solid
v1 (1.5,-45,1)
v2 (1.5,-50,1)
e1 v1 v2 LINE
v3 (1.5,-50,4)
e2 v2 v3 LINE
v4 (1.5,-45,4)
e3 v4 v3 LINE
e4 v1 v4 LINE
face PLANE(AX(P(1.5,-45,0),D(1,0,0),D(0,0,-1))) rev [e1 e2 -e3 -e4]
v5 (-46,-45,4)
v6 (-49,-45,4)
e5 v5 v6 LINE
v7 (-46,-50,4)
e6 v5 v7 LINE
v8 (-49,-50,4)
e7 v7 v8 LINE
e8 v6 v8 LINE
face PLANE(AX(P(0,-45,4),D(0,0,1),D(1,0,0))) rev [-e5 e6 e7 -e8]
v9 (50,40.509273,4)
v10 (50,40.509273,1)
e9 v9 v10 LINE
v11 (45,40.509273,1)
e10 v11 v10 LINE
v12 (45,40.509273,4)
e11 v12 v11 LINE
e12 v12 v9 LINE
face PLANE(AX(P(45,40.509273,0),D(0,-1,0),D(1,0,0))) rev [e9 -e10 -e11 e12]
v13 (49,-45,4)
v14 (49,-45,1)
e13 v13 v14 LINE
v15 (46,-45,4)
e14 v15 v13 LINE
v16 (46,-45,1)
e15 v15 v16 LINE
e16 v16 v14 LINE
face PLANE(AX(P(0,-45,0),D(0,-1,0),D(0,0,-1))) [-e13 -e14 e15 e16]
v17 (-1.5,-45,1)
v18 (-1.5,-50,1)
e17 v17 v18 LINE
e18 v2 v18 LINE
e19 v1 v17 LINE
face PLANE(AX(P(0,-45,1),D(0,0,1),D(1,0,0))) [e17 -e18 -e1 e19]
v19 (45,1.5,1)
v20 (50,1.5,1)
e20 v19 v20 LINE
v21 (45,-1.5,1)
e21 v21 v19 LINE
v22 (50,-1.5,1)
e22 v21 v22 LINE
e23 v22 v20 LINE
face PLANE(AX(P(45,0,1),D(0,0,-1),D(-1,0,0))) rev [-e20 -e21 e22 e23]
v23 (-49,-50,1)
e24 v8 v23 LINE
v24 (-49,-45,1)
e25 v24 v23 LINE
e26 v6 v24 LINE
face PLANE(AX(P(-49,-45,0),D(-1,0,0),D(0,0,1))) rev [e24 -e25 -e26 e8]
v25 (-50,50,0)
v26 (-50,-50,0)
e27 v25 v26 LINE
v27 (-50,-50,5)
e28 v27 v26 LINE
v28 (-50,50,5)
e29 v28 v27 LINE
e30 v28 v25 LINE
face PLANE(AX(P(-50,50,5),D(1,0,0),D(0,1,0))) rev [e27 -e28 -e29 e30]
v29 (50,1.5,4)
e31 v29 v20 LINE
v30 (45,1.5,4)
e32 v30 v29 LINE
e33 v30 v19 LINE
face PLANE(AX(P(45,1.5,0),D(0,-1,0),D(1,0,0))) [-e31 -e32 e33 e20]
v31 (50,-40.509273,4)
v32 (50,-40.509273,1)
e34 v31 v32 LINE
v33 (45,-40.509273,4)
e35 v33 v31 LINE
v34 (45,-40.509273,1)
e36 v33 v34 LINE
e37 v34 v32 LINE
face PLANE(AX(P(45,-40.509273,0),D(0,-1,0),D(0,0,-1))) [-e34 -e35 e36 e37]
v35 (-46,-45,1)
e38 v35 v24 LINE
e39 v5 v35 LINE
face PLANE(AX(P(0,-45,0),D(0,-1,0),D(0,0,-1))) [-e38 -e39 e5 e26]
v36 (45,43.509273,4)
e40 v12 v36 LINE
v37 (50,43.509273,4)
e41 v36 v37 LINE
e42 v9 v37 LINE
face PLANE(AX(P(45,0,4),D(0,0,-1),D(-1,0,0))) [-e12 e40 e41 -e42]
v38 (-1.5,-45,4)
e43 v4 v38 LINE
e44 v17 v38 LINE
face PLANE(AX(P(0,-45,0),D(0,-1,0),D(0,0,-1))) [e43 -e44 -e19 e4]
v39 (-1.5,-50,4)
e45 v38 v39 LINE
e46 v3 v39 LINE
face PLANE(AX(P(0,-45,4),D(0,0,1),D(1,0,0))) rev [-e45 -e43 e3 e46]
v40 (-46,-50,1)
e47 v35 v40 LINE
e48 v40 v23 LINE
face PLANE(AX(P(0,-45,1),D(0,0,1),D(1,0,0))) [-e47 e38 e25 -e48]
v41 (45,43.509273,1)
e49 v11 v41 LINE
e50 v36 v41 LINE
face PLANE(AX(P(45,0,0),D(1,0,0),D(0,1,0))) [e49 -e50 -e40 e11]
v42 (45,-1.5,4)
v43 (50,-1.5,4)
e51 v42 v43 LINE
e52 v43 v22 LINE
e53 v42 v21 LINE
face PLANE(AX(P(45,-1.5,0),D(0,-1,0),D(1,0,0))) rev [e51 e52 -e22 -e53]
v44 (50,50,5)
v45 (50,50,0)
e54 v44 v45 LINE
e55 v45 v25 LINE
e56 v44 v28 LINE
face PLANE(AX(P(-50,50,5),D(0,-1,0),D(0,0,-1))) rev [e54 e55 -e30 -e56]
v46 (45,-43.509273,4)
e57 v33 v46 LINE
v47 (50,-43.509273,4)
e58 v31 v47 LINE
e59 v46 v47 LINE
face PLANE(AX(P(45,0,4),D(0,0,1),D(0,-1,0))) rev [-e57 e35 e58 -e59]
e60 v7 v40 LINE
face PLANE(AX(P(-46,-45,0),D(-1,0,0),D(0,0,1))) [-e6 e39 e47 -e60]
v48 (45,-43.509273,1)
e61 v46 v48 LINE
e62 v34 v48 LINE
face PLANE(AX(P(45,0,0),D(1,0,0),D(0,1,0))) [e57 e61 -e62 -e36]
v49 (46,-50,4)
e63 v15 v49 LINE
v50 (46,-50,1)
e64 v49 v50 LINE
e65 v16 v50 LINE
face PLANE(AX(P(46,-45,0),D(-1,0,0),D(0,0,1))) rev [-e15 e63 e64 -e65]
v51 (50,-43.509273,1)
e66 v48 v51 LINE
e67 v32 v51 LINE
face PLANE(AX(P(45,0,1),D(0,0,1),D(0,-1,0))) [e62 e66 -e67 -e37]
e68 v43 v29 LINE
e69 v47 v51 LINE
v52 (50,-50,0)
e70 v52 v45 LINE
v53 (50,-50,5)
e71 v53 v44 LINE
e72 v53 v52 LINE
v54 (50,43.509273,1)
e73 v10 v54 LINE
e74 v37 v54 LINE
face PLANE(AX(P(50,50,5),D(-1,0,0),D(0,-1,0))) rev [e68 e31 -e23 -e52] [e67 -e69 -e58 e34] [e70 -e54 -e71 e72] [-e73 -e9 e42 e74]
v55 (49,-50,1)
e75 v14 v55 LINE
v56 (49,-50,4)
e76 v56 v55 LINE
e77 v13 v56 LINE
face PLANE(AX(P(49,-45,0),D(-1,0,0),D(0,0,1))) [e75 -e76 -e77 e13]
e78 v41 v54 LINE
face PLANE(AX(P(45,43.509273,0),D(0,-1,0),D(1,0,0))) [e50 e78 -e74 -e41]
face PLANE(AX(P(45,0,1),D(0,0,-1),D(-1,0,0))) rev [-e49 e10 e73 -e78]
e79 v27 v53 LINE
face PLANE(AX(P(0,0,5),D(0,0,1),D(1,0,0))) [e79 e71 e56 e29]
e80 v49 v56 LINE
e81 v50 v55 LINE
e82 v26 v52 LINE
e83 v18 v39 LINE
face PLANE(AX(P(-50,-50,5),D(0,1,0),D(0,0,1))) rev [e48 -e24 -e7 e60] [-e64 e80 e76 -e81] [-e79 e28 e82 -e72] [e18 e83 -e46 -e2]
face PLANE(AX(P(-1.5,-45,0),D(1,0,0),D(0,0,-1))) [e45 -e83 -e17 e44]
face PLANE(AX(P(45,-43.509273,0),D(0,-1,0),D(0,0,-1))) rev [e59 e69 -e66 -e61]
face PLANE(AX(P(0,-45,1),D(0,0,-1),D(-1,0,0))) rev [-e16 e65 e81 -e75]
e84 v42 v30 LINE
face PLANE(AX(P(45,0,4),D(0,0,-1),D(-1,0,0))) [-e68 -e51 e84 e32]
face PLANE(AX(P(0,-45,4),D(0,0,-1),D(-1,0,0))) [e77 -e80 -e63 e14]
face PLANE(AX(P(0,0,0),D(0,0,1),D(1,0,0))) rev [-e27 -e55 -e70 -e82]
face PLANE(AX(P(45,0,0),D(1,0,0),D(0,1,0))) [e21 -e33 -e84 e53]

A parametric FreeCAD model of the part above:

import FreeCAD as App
import Part
import Sketcher

V = App.Vector
Q = App.Units.Quantity

doc = App.newDocument("Part")
body = doc.addObject("PartDesign::Body", "Body")

sketch1 = body.newObject("Sketcher::SketchObject", "Sketch")
sketch1.AttachmentSupport = (doc.getObject("XY_Plane"), [""])
sketch1.MapMode = "FlatFace"
sketch1.addGeometry([
    Part.LineSegment(V(-50, 50, 0), V(-50, -50, 0)),
    Part.LineSegment(V(-50, -50, 0), V(50, -50, 0)),
    Part.LineSegment(V(50, -50, 0), V(50, 50, 0)),
    Part.LineSegment(V(50, 50, 0), V(-50, 50, 0)),
], False)
sketch1.addConstraint([
    Sketcher.Constraint("Coincident", 0, 2, 1, 1),
    Sketcher.Constraint("Coincident", 1, 2, 2, 1),
    Sketcher.Constraint("Coincident", 2, 2, 3, 1),
    Sketcher.Constraint("Coincident", 3, 2, 0, 1),
    Sketcher.Constraint("Vertical", 0),
    Sketcher.Constraint("Horizontal", 1),
    Sketcher.Constraint("Vertical", 2),
    Sketcher.Constraint("Horizontal", 3),
    Sketcher.Constraint("Symmetric", 0, 2, 2, 2, -1, 1),
    Sketcher.Constraint("Equal", 3, 0),
    Sketcher.Constraint("DistanceX", 1, 1, 1, 2, Q("100 mm")),
])
pad1 = body.newObject("PartDesign::Pad", "Pad")
pad1.Profile = sketch1
pad1.Length = 5

sketch2 = body.newObject("Sketcher::SketchObject", "Sketch001")
sketch2.AttachmentSupport = (doc.getObject("YZ_Plane"), [""])
sketch2.MapMode = "FlatFace"
sketch2.AttachmentOffset = App.Placement(V(0, 0, 50), App.Rotation())
sketch2.addGeometry([
    Part.LineSegment(V(40.509273, 1, 0), V(43.509273, 1, 0)),
    Part.LineSegment(V(43.509273, 1, 0), V(43.509273, 4, 0)),
    Part.LineSegment(V(43.509273, 4, 0), V(40.509273, 4, 0)),
    Part.LineSegment(V(40.509273, 4, 0), V(40.509273, 1, 0)),
    Part.LineSegment(V(-1.5, 4, 0), V(-1.5, 1, 0)),
    Part.LineSegment(V(-1.5, 1, 0), V(1.5, 1, 0)),
    Part.LineSegment(V(1.5, 1, 0), V(1.5, 4, 0)),
    Part.LineSegment(V(1.5, 4, 0), V(-1.5, 4, 0)),
    Part.LineSegment(V(-40.509273, 4, 0), V(-43.509273, 4, 0)),
    Part.LineSegment(V(-43.509273, 4, 0), V(-43.509273, 1, 0)),
    Part.LineSegment(V(-43.509273, 1, 0), V(-40.509273, 1, 0)),
    Part.LineSegment(V(-40.509273, 1, 0), V(-40.509273, 4, 0)),
], False)
sketch2.addConstraint([
    Sketcher.Constraint("Coincident", 0, 2, 1, 1),
    Sketcher.Constraint("Coincident", 1, 2, 2, 1),
    Sketcher.Constraint("Coincident", 2, 2, 3, 1),
    Sketcher.Constraint("Coincident", 3, 2, 0, 1),
    Sketcher.Constraint("Coincident", 4, 2, 5, 1),
    Sketcher.Constraint("Coincident", 5, 2, 6, 1),
    Sketcher.Constraint("Coincident", 6, 2, 7, 1),
    Sketcher.Constraint("Coincident", 7, 2, 4, 1),
    Sketcher.Constraint("Coincident", 8, 2, 9, 1),
    Sketcher.Constraint("Coincident", 9, 2, 10, 1),
    Sketcher.Constraint("Coincident", 10, 2, 11, 1),
    Sketcher.Constraint("Coincident", 11, 2, 8, 1),
    Sketcher.Constraint("Horizontal", 0),
    Sketcher.Constraint("Vertical", 1),
    Sketcher.Constraint("Horizontal", 2),
    Sketcher.Constraint("Vertical", 3),
    Sketcher.Constraint("Vertical", 4),
    Sketcher.Constraint("Horizontal", 5),
    Sketcher.Constraint("Vertical", 6),
    Sketcher.Constraint("Horizontal", 7),
    Sketcher.Constraint("Horizontal", 8),
    Sketcher.Constraint("Vertical", 9),
    Sketcher.Constraint("Horizontal", 10),
    Sketcher.Constraint("Vertical", 11),
    Sketcher.Constraint("Symmetric", 1, 2, 8, 2, -2),
    Sketcher.Constraint("Symmetric", 3, 2, 10, 2, -2),
    Sketcher.Constraint("Horizontal", 3, 2, 4, 2),
    Sketcher.Constraint("Horizontal", 2, 2, 6, 2),
    Sketcher.Constraint("Equal", 2, 5),
    Sketcher.Constraint("Equal", 10, 1),
    Sketcher.Constraint("DistanceX", 0, 1, 0, 2, Q("3 mm")),
    Sketcher.Constraint("DistanceY", -1, 1, 0, 2, Q("1 mm")),
    Sketcher.Constraint("DistanceX", 4, 2, -1, 1, Q("1.5 mm")),
    Sketcher.Constraint("DistanceX", -1, 1, 0, 2, Q("43.509273 mm")),
])
pocket1 = body.newObject("PartDesign::Pocket", "Pocket")
pocket1.Profile = sketch2
pocket1.Length = 5

sketch3 = body.newObject("Sketcher::SketchObject", "Sketch002")
sketch3.AttachmentSupport = (doc.getObject("XZ_Plane"), [""])
sketch3.MapMode = "FlatFace"
sketch3.AttachmentOffset = App.Placement(V(0, 0, 50), App.Rotation())
sketch3.addGeometry([
    Part.LineSegment(V(-49, 4, 0), V(-49, 1, 0)),
    Part.LineSegment(V(-49, 1, 0), V(-46, 1, 0)),
    Part.LineSegment(V(-46, 1, 0), V(-46, 4, 0)),
    Part.LineSegment(V(-46, 4, 0), V(-49, 4, 0)),
    Part.LineSegment(V(46, 4, 0), V(46, 1, 0)),
    Part.LineSegment(V(46, 1, 0), V(49, 1, 0)),
    Part.LineSegment(V(49, 1, 0), V(49, 4, 0)),
    Part.LineSegment(V(49, 4, 0), V(46, 4, 0)),
    Part.LineSegment(V(-1.5, 4, 0), V(-1.5, 1, 0)),
    Part.LineSegment(V(-1.5, 1, 0), V(1.5, 1, 0)),
    Part.LineSegment(V(1.5, 1, 0), V(1.5, 4, 0)),
    Part.LineSegment(V(1.5, 4, 0), V(-1.5, 4, 0)),
], False)
sketch3.addConstraint([
    Sketcher.Constraint("Coincident", 0, 2, 1, 1),
    Sketcher.Constraint("Coincident", 1, 2, 2, 1),
    Sketcher.Constraint("Coincident", 2, 2, 3, 1),
    Sketcher.Constraint("Coincident", 3, 2, 0, 1),
    Sketcher.Constraint("Coincident", 4, 2, 5, 1),
    Sketcher.Constraint("Coincident", 5, 2, 6, 1),
    Sketcher.Constraint("Coincident", 6, 2, 7, 1),
    Sketcher.Constraint("Coincident", 7, 2, 4, 1),
    Sketcher.Constraint("Coincident", 8, 2, 9, 1),
    Sketcher.Constraint("Coincident", 9, 2, 10, 1),
    Sketcher.Constraint("Coincident", 10, 2, 11, 1),
    Sketcher.Constraint("Coincident", 11, 2, 8, 1),
    Sketcher.Constraint("Vertical", 0),
    Sketcher.Constraint("Horizontal", 1),
    Sketcher.Constraint("Vertical", 2),
    Sketcher.Constraint("Horizontal", 3),
    Sketcher.Constraint("Vertical", 4),
    Sketcher.Constraint("Horizontal", 5),
    Sketcher.Constraint("Vertical", 6),
    Sketcher.Constraint("Horizontal", 7),
    Sketcher.Constraint("Vertical", 8),
    Sketcher.Constraint("Horizontal", 9),
    Sketcher.Constraint("Vertical", 10),
    Sketcher.Constraint("Horizontal", 11),
    Sketcher.Constraint("Symmetric", 1, 2, 4, 2, -2),
    Sketcher.Constraint("Symmetric", 3, 2, 6, 2, -2),
    Sketcher.Constraint("Horizontal", 5, 2, 8, 2),
    Sketcher.Constraint("Horizontal", 7, 2, 10, 2),
    Sketcher.Constraint("Equal", 7, 9),
    Sketcher.Constraint("Equal", 11, 0),
    Sketcher.Constraint("DistanceX", 1, 1, 1, 2, Q("3 mm")),
    Sketcher.Constraint("DistanceX", 0, 2, -1, 1, Q("49 mm")),
    Sketcher.Constraint("DistanceY", -1, 1, 0, 2, Q("1 mm")),
    Sketcher.Constraint("DistanceX", 8, 2, -1, 1, Q("1.5 mm")),
])
pocket2 = body.newObject("PartDesign::Pocket", "Pocket001")
pocket2.Profile = sketch3
pocket2.Length = 5

doc.recompute()
